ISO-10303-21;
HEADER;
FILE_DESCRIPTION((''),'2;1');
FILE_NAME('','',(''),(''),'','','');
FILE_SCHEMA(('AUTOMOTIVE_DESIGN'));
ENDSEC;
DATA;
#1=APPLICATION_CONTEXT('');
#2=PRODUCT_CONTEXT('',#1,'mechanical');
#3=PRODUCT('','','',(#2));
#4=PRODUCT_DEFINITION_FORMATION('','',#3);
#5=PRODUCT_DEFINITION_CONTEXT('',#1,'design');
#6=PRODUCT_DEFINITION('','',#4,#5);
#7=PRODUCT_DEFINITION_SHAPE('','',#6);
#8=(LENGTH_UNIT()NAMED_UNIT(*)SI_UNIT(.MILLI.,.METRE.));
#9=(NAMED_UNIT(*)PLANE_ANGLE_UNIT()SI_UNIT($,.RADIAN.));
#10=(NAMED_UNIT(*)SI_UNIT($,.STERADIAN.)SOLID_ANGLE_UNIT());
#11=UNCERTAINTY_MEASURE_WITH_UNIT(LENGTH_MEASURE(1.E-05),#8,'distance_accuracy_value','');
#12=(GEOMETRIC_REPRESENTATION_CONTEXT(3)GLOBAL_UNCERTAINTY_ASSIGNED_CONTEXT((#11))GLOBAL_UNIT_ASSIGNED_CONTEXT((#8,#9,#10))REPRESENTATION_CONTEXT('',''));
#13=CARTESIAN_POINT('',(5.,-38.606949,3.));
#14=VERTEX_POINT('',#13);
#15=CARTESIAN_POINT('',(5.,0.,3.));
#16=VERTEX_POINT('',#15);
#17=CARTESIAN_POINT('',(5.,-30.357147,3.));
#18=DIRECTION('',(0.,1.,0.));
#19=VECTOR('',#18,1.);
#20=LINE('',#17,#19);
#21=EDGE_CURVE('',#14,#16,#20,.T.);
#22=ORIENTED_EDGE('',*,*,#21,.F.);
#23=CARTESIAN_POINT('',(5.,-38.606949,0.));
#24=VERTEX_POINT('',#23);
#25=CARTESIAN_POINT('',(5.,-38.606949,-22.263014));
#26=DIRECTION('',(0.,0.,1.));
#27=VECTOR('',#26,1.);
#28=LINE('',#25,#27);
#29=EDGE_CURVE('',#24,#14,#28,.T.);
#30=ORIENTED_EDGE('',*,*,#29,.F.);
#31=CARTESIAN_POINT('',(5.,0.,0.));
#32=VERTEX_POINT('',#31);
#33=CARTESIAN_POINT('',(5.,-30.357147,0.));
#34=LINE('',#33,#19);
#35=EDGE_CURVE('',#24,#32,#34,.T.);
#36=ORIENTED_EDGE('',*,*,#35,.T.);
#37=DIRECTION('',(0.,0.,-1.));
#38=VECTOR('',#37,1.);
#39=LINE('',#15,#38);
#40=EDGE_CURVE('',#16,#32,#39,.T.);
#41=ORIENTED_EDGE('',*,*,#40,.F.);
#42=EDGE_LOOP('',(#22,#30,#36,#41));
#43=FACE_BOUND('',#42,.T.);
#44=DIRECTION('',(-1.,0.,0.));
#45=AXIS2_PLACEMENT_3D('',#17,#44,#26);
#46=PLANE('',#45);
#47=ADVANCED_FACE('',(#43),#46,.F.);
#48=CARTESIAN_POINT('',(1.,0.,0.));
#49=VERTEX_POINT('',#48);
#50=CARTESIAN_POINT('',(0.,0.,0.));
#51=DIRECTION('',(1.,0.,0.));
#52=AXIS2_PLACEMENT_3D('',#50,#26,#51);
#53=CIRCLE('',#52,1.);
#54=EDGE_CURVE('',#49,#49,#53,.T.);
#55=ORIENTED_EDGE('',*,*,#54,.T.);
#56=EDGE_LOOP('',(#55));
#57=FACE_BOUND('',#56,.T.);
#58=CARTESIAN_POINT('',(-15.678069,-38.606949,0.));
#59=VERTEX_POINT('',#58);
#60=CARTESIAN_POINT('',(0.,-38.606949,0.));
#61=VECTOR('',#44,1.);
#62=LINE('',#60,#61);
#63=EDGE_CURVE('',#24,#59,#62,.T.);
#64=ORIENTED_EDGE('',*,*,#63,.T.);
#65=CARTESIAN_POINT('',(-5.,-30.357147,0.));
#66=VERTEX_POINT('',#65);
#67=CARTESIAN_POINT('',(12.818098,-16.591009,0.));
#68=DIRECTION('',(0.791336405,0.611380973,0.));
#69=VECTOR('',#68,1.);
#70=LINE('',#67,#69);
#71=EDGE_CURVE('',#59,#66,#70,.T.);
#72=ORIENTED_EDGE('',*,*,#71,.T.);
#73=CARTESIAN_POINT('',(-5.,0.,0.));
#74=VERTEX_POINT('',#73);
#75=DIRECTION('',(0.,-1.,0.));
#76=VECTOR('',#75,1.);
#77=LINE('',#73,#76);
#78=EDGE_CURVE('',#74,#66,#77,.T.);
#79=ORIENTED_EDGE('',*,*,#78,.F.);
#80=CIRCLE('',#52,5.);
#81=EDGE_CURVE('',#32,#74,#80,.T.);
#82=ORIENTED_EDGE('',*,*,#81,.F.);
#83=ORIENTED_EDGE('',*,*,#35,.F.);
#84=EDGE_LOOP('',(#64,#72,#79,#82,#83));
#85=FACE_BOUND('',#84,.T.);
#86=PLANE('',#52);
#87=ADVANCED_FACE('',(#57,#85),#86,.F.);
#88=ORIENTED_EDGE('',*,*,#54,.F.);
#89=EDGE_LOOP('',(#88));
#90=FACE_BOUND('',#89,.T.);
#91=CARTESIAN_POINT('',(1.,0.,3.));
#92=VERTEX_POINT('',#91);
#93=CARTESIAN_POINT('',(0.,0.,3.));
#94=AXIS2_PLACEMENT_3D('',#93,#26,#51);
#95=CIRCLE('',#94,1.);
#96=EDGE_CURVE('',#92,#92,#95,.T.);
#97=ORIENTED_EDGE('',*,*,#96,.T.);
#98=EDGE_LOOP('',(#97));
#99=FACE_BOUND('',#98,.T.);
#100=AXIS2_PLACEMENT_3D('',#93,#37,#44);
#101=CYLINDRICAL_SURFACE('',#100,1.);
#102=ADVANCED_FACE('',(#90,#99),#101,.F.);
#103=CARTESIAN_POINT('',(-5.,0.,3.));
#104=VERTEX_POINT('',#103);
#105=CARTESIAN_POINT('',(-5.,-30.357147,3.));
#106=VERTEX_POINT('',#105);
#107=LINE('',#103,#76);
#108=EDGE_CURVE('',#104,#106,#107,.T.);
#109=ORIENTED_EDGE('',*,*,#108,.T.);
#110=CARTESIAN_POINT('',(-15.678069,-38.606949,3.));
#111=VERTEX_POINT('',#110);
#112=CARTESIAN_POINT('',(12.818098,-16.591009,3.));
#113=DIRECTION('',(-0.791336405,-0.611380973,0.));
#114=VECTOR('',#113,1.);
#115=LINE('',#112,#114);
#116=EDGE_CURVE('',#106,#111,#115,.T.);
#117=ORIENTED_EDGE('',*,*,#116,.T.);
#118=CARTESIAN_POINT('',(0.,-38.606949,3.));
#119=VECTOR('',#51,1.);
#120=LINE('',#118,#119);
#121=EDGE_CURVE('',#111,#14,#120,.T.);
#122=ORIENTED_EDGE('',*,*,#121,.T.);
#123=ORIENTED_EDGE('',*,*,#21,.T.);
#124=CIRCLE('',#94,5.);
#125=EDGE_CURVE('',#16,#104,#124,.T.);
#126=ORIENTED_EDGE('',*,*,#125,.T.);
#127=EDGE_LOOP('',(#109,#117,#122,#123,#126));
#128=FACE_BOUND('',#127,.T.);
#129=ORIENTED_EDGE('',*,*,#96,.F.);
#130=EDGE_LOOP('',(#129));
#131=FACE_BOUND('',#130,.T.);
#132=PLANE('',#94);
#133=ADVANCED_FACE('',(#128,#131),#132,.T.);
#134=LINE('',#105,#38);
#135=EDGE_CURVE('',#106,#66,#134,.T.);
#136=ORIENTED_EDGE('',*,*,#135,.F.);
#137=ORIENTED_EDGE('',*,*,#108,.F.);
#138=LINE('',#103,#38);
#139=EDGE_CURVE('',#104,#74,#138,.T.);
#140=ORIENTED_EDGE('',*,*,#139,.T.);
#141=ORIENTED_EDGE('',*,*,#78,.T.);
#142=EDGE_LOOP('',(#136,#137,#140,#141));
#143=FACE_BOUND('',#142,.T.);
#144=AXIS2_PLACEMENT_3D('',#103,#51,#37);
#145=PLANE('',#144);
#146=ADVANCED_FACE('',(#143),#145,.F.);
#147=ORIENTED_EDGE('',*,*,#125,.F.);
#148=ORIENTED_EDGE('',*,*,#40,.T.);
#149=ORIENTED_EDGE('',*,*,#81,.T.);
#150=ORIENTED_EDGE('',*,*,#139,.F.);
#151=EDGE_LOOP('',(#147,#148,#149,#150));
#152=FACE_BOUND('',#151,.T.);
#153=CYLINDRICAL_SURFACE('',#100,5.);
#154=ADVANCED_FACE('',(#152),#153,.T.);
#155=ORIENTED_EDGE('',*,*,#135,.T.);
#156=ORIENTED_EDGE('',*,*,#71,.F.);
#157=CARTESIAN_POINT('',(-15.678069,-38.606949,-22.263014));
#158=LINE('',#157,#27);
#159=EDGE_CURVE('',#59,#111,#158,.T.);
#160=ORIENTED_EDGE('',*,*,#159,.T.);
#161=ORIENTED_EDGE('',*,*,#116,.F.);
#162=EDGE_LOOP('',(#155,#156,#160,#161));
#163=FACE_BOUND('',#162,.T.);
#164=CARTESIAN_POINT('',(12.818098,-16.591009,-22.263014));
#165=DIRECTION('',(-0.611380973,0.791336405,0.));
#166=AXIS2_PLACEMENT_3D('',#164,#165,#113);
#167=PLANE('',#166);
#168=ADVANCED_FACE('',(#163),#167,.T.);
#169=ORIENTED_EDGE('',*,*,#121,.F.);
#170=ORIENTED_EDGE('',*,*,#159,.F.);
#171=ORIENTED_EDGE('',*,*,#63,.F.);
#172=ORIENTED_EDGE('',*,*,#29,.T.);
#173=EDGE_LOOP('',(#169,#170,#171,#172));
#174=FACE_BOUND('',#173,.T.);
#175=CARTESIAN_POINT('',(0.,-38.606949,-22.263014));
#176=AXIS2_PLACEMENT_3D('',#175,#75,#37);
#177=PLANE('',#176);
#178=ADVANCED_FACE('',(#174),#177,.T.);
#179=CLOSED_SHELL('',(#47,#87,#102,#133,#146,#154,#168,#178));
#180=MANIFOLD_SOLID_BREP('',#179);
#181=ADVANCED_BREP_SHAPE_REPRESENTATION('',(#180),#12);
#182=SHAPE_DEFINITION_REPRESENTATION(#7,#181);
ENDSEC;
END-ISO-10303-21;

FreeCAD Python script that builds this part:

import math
import FreeCAD as App
import Part
import Sketcher
from FreeCAD import Vector
Q = App.Units.Quantity


def add_polygon(sketch, points):
    """Adds a closed chain of lines whose ends are joined by coincident constraints."""
    first, n = sketch.GeometryCount, len(points)
    for a, b in zip(points, points[1:] + points[:1]):
        sketch.addGeometry(Part.LineSegment(App.Vector(*a, 0), App.Vector(*b, 0)), False)
    for i in range(n):
        sketch.addConstraint(Sketcher.Constraint("Coincident", first + i, 2, first + (i + 1) % n, 1))

doc = App.newDocument("Part")
body = doc.addObject("PartDesign::Body", "Body")

# Sketch on XY plane
sketch1 = body.newObject("Sketcher::SketchObject", "Sketch")
sketch1.AttachmentSupport = (doc.getObject("XY_Plane"), [""])
sketch1.MapMode = "FlatFace"
sketch1.addGeometry(Part.LineSegment(Vector(-5, 0, 0), Vector(-5, -30.4, 0)), False)
sketch1.addGeometry(Part.LineSegment(Vector(-5, -30.4, 0), Vector(5, -30.4, 0)), False)
sketch1.addGeometry(Part.LineSegment(Vector(5, -30.4, 0), Vector(5, 0, 0)), False)
sketch1.addGeometry(Part.ArcOfCircle(Part.Circle(Vector(0, 0, 0), Vector(0, 0, 1), 5), math.radians(0), math.radians(180)), False)
sketch1.addGeometry(Part.Circle(Vector(0, 0, 0), Vector(0, 0, 1), 1), False)
sketch1.addConstraint(Sketcher.Constraint("Coincident", 0, 2, 1, 1))
sketch1.addConstraint(Sketcher.Constraint("Coincident", 1, 2, 2, 1))
sketch1.addConstraint(Sketcher.Constraint("Tangent", 2, 2, 3, 1))
sketch1.addConstraint(Sketcher.Constraint("Tangent", 3, 2, 0, 1))
sketch1.addConstraint(Sketcher.Constraint("Vertical", 0))
sketch1.addConstraint(Sketcher.Constraint("Horizontal", 1))
sketch1.addConstraint(Sketcher.Constraint("Vertical", 2))
sketch1.addConstraint(Sketcher.Constraint("Coincident", 3, 3, -1, 1))
sketch1.addConstraint(Sketcher.Constraint("Coincident", 4, 3, -1, 1))
sketch1.addConstraint(Sketcher.Constraint("Diameter", 4, Q("2 mm")))
sketch1.addConstraint(Sketcher.Constraint("Radius", 3, Q("5 mm")))
sketch1.addConstraint(Sketcher.Constraint("DistanceY", 0, 2, 0, 1, Q("30.357147 mm")))
pad1 = body.newObject("PartDesign::Pad", "Pad")
pad1.Profile = sketch1
pad1.Length = 3

# Sketch on XY plane
sketch2 = body.newObject("Sketcher::SketchObject", "Sketch001")
sketch2.AttachmentSupport = (doc.getObject("XY_Plane"), [""])
sketch2.MapMode = "FlatFace"
sketch2.AttachmentOffset = App.Placement(Vector(0, 0, 3), App.Rotation())
add_polygon(sketch2, [(-16, -39), (5, -39), (5, -30), (-5, -30)])  # lines 0-3
sketch2.addConstraint(Sketcher.Constraint("Horizontal", 0))
sketch2.addConstraint(Sketcher.Constraint("Vertical", 1))
sketch2.addConstraint(Sketcher.Constraint("Horizontal", 2))
sketch2.addConstraint(Sketcher.Constraint("DistanceX", 2, 2, 2, 1, Q("10 mm")))
sketch2.addConstraint(Sketcher.Constraint("DistanceX", -1, 1, 0, 2, Q("5 mm")))
sketch2.addConstraint(Sketcher.Constraint("DistanceY", 1, 1, 1, 2, Q("8.249802 mm")))
sketch2.addConstraint(Sketcher.Constraint("DistanceX", 0, 1, 0, 2, Q("20.678069 mm")))
sketch2.addConstraint(Sketcher.Constraint("DistanceY", 0, 2, -1, 1, Q("38.606949 mm")))
pad2 = body.newObject("PartDesign::Pad", "Pad001")
pad2.Profile = sketch2
pad2.Length = 3
pad2.Reversed = True

doc.recompute()
